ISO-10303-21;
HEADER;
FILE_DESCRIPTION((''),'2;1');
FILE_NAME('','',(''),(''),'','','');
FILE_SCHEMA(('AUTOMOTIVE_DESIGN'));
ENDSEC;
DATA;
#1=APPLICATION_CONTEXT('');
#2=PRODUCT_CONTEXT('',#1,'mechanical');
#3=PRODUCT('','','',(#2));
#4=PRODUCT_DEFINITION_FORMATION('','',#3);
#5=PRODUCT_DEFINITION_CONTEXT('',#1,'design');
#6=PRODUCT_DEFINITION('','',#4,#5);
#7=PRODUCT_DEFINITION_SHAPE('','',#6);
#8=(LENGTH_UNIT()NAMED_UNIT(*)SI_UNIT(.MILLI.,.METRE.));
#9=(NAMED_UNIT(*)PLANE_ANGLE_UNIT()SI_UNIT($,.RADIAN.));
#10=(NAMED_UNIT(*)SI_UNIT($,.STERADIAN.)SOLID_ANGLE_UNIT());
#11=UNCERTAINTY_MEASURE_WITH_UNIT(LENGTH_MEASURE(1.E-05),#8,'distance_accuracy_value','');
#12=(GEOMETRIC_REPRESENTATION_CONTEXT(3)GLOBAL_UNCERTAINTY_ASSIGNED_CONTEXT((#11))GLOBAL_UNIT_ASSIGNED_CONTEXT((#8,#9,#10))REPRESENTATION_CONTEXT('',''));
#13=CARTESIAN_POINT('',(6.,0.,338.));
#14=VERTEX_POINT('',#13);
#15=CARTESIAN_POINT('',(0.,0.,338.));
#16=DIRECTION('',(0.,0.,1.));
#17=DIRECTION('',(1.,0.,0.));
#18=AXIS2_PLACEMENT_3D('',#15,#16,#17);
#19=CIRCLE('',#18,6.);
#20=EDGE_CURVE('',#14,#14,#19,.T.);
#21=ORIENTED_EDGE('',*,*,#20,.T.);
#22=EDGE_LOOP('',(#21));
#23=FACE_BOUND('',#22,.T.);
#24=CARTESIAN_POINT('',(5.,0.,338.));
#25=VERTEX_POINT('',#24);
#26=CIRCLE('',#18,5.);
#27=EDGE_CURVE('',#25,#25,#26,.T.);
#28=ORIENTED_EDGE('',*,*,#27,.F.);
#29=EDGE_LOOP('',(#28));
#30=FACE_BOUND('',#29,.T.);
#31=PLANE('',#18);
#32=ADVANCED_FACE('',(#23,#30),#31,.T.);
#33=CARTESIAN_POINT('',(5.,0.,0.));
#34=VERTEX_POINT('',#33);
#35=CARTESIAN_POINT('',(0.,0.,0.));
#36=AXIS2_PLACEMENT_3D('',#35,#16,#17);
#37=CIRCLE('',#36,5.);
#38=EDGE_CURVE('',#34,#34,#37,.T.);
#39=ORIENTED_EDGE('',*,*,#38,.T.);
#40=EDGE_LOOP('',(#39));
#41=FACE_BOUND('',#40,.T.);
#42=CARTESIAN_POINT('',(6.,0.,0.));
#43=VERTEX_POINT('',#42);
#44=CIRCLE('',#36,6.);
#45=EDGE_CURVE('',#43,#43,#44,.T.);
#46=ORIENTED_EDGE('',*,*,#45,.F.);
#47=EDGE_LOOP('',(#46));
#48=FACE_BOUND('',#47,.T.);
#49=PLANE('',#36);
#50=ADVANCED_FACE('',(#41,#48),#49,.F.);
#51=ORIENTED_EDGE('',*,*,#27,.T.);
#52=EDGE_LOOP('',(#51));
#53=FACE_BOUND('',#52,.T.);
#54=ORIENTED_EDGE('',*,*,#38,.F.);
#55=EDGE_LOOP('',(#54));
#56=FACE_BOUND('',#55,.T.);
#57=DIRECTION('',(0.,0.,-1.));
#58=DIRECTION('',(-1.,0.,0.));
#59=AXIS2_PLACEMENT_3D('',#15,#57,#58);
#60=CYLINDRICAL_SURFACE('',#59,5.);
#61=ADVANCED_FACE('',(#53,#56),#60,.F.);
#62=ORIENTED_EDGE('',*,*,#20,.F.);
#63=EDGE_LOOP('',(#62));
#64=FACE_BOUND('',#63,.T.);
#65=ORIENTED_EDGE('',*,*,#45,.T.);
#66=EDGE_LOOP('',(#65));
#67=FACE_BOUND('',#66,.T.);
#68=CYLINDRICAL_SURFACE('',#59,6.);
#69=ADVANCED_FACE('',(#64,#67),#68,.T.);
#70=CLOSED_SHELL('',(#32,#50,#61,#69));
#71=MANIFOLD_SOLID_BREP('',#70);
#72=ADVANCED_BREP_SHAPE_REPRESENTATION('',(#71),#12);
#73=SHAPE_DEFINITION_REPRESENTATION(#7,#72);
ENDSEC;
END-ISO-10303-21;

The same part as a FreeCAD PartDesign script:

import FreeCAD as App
import Part
import Sketcher
from FreeCAD import Vector

doc = App.newDocument("Part")
body = doc.addObject("PartDesign::Body", "Body")

# Sketch on XY plane
sketch1 = doc.addObject("Sketcher::SketchObject", "Sketch")
body.addObject(sketch1)
sketch1.AttachmentSupport = (doc.XY_Plane, [""])
sketch1.MapMode = "FlatFace"
sketch1.addGeometry([
    Part.Circle(Vector(0, 0, 0), Vector(0, 0, 1), 6),
    Part.Circle(Vector(0, 0, 0), Vector(0, 0, 1), 5),
], False)
sketch1.addConstraint([
    Sketcher.Constraint("Coincident", 0, 3, -1, 1),
    Sketcher.Constraint("Coincident", 1, 3, -1, 1),
    Sketcher.Constraint("Diameter", 0, 12.0),
    Sketcher.Constraint("Diameter", 1, 10.0),
])
pad1 = doc.addObject("PartDesign::Pad", "Pad")
body.addObject(pad1)
pad1.Profile = sketch1
pad1.Length = 338

doc.recompute()
